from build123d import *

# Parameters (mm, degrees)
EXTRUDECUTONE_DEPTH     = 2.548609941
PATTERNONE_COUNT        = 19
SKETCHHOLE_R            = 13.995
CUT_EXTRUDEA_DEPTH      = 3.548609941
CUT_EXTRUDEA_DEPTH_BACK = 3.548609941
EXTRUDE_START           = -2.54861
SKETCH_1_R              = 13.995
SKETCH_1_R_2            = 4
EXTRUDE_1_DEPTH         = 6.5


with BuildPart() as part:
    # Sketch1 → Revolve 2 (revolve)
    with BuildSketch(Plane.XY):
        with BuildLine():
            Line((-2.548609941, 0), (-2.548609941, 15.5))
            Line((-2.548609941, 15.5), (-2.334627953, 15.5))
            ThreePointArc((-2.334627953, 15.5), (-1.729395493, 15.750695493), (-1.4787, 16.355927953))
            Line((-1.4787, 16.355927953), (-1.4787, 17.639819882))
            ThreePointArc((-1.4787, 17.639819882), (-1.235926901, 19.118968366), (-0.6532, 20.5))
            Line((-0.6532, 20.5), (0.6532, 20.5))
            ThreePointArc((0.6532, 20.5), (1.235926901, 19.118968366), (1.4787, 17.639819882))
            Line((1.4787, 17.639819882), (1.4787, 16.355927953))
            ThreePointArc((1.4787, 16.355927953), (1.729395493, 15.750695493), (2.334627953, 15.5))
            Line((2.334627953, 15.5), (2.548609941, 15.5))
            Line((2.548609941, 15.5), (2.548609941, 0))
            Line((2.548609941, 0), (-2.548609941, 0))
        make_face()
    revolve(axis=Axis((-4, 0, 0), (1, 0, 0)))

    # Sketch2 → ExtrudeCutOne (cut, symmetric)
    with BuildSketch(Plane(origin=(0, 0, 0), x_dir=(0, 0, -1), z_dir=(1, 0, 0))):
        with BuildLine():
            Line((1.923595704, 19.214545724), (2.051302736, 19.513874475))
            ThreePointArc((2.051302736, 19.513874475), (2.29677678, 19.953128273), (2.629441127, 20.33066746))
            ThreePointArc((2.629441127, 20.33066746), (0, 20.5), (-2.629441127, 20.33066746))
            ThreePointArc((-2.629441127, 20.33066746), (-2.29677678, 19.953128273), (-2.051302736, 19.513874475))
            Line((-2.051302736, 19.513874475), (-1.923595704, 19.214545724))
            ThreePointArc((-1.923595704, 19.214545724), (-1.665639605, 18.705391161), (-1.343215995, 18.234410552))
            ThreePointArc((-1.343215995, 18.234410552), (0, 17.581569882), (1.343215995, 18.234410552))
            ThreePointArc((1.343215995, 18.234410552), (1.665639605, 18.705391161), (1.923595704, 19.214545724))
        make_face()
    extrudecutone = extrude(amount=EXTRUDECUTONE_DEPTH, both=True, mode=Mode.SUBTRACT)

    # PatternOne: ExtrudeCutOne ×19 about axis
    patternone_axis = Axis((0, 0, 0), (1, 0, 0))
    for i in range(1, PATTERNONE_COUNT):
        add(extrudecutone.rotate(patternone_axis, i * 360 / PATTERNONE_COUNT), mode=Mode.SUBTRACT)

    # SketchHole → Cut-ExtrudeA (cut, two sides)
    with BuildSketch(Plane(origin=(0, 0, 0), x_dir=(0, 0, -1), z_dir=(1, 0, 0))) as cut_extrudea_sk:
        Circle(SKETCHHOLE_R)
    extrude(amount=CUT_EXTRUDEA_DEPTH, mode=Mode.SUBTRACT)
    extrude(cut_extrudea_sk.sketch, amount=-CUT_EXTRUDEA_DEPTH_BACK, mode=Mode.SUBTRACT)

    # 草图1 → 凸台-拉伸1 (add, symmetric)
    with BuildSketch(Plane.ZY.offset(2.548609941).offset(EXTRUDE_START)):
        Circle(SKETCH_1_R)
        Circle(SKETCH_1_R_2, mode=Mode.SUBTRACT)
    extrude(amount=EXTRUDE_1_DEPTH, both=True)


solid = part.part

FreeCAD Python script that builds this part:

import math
import FreeCAD as App
import Part
import Sketcher

doc = App.newDocument("Part")
body = doc.addObject("PartDesign::Body", "Body")

# Sketch on XY plane
sketch1 = doc.addObject("Sketcher::SketchObject", "Sketch")
body.addObject(sketch1)
sketch1.AttachmentSupport = (doc.XY_Plane, [""])
sketch1.MapMode = "FlatFace"
sketch1.addGeometry([
    Part.LineSegment(App.Vector(-2.55, 15.5, 0), App.Vector(-2.55, 0, 0)),  # 0
    Part.LineSegment(App.Vector(-2.55, 0, 0), App.Vector(2.55, 0, 0)),  # 1
    Part.LineSegment(App.Vector(2.55, 0, 0), App.Vector(2.55, 15.5, 0)),  # 2
    Part.LineSegment(App.Vector(2.55, 15.5, 0), App.Vector(2.33, 15.5, 0)),  # 3
    Part.ArcOfCircle(Part.Circle(App.Vector(2.33, 16.36, 0), App.Vector(0, 0, 1), 0.86), math.radians(180), math.radians(270)),  # 4
    Part.LineSegment(App.Vector(1.48, 16.36, 0), App.Vector(1.48, 17.64, 0)),  # 5
    Part.ArcOfCircle(Part.Circle(App.Vector(-4.87, 17.36, 0), App.Vector(0, 0, 1), 6.35), math.radians(3), math.radians(30)),  # 6
    Part.LineSegment(App.Vector(0.65, 20.5, 0), App.Vector(-0.65, 20.5, 0)),  # 7
    Part.ArcOfCircle(Part.Circle(App.Vector(4.87, 17.36, 0), App.Vector(0, 0, 1), 6.35), math.radians(150), math.radians(177)),  # 8
    Part.LineSegment(App.Vector(-1.48, 17.64, 0), App.Vector(-1.48, 16.36, 0)),  # 9
    Part.ArcOfCircle(Part.Circle(App.Vector(-2.33, 16.36, 0), App.Vector(0, 0, 1), 0.86), math.radians(-90), math.radians(0)),  # 10
    Part.LineSegment(App.Vector(-2.33, 15.5, 0), App.Vector(-2.55, 15.5, 0)),  # 11
], False)
sketch1.addConstraint([
    Sketcher.Constraint("Coincident", 0, 2, 1, 1),
    Sketcher.Constraint("Coincident", 1, 2, 2, 1),
    Sketcher.Constraint("Coincident", 2, 2, 3, 1),
    Sketcher.Constraint("Tangent", 3, 2, 4, 2),
    Sketcher.Constraint("Tangent", 4, 1, 5, 1),
    Sketcher.Constraint("Coincident", 5, 2, 6, 1),
    Sketcher.Constraint("Coincident", 6, 2, 7, 1),
    Sketcher.Constraint("Coincident", 7, 2, 8, 1),
    Sketcher.Constraint("Coincident", 8, 2, 9, 1),
    Sketcher.Constraint("Tangent", 9, 2, 10, 2),
    Sketcher.Constraint("Tangent", 10, 1, 11, 1),
    Sketcher.Constraint("Coincident", 11, 2, 0, 1),
    Sketcher.Constraint("Vertical", 0),
    Sketcher.Constraint("Horizontal", 1),
    Sketcher.Constraint("Vertical", 2),
    Sketcher.Constraint("Horizontal", 3),
    Sketcher.Constraint("Vertical", 5),
    Sketcher.Constraint("Horizontal", 7),
    Sketcher.Constraint("Vertical", 9),
    Sketcher.Constraint("Horizontal", 11),
    Sketcher.Constraint("Equal", 6, 8),
    Sketcher.Constraint("Equal", 4, 10),
    Sketcher.Constraint("Symmetric", 0, 2, 1, 2, -1, 1),
    Sketcher.Constraint("Symmetric", 6, 3, 8, 3, -2),
    Sketcher.Constraint("Symmetric", 4, 3, 10, 3, -2),
    Sketcher.Constraint("Radius", 6, 6.35),
    Sketcher.Constraint("DistanceY", 0, 2, 0, 1, 15.5),
    Sketcher.Constraint("DistanceY", -1, 1, 6, 2, 20.5),
    Sketcher.Constraint("DistanceX", 7, 2, 7, 1, 1.3064),
    Sketcher.Constraint("Radius", 4, 0.855928),
    Sketcher.Constraint("DistanceX", 1, 1, 1, 2, 5.09722),
    Sketcher.Constraint("DistanceX", 3, 2, 3, 1, 0.213982),
    Sketcher.Constraint("DistanceY", 5, 1, 5, 2, 1.283892),
])
revolution = doc.addObject("PartDesign::Revolution", "Revolution")
body.addObject(revolution)
revolution.Profile = sketch1
revolution.ReferenceAxis = (sketch1, ["H_Axis"])
revolution.Angle = 360

# Sketch on YZ plane
sketch2 = doc.addObject("Sketcher::SketchObject", "Sketch001")
body.addObject(sketch2)
sketch2.AttachmentSupport = (doc.YZ_Plane, [""])
sketch2.MapMode = "FlatFace"
sketch2.addGeometry([
    Part.LineSegment(App.Vector(19.21, -1.92, 0), App.Vector(19.51, -2.05, 0)),  # 0
    Part.ArcOfCircle(Part.Circle(App.Vector(18.58, -4.23, 0), App.Vector(0, 0, 1), 2.37), math.radians(43), math.radians(67)),  # 1
    Part.ArcOfCircle(Part.Circle(App.Vector(0, 0, 0), App.Vector(0, 0, 1), 20.5), math.radians(-7.37), math.radians(7.37)),  # 2
    Part.ArcOfCircle(Part.Circle(App.Vector(18.58, 4.23, 0), App.Vector(0, 0, 1), 2.37), math.radians(-67), math.radians(-43)),  # 3
    Part.LineSegment(App.Vector(19.51, 2.05, 0), App.Vector(19.21, 1.92, 0)),  # 4
    Part.ArcOfCircle(Part.Circle(App.Vector(20.92, -2.08, 0), App.Vector(0, 0, 1), 4.35), math.radians(113.11), math.radians(128.16)),  # 5
    Part.ArcOfCircle(Part.Circle(App.Vector(19.29, 0, 0), App.Vector(0, 0, 1), 1.71), math.radians(128), math.radians(232)),  # 6
    Part.ArcOfCircle(Part.Circle(App.Vector(20.92, 2.08, 0), App.Vector(0, 0, 1), 4.35), math.radians(-128.16), math.radians(-113.11)),  # 7
], False)
sketch2.addConstraint([
    Sketcher.Constraint("Tangent", 0, 2, 1, 2),
    Sketcher.Constraint("Coincident", 1, 1, 2, 1),
    Sketcher.Constraint("Coincident", 2, 2, 3, 2),
    Sketcher.Constraint("Tangent", 3, 1, 4, 1),
    Sketcher.Constraint("Tangent", 4, 2, 5, 1),
    Sketcher.Constraint("Tangent", 5, 2, 6, 1),
    Sketcher.Constraint("Tangent", 6, 2, 7, 1),
    Sketcher.Constraint("Tangent", 7, 2, 0, 1),
    Sketcher.Constraint("Coincident", 2, 3, -1, 1),
    Sketcher.Constraint("Equal", 1, 3),
    Sketcher.Constraint("Equal", 5, 7),
    Sketcher.Constraint("Symmetric", 1, 3, 3, 3, -1),
    Sketcher.Constraint("Symmetric", 5, 3, 7, 3, -1),
    Sketcher.Constraint("Radius", 2, 20.5),
    Sketcher.Constraint("Radius", 1, 2.370322),
    Sketcher.Constraint("Radius", 5, 4.34825),
    Sketcher.Constraint("Radius", 6, 1.70825),
    Sketcher.Constraint("DistanceX", -1, 1, 1, 3, 18.583709),
    Sketcher.Constraint("DistanceY", 1, 3, -1, 1, 4.23149),
    Sketcher.Constraint("DistanceY", 5, 3, -1, 1, 2.075861),
    Sketcher.Constraint("DistanceX", -1, 1, 6, 3, 19.28982),
])
pocket1 = doc.addObject("PartDesign::Pocket", "Pocket")
body.addObject(pocket1)
pocket1.Profile = sketch2
pocket1.Length = 5.09722
pocket1.Midplane = True
doc.recompute()

polarpattern = doc.addObject("PartDesign::PolarPattern", "PolarPattern")
body.addObject(polarpattern)
polarpattern.Originals = [pocket1]
polarpattern.Axis = (doc.X_Axis, [""])
polarpattern.Angle = 360
polarpattern.Occurrences = 19
body.Tip = polarpattern

# Sketch on YZ plane
sketch3 = doc.addObject("Sketcher::SketchObject", "Sketch002")
body.addObject(sketch3)
sketch3.AttachmentSupport = (doc.YZ_Plane, [""])
sketch3.MapMode = "FlatFace"
sketch3.addGeometry(Part.Circle(App.Vector(0, 0, 0), App.Vector(0, 0, 1), 14), False)
sketch3.addConstraint([
    Sketcher.Constraint("Coincident", 0, 3, -1, 1),
    Sketcher.Constraint("Diameter", 0, 27.99),
])
pocket2 = doc.addObject("PartDesign::Pocket", "Pocket001")
body.addObject(pocket2)
pocket2.Profile = sketch3
pocket2.Type = "ThroughAll"
pocket2.Midplane = True

# Sketch on YZ plane
sketch4 = doc.addObject("Sketcher::SketchObject", "Sketch003")
body.addObject(sketch4)
sketch4.AttachmentSupport = (doc.YZ_Plane, [""])
sketch4.MapMode = "FlatFace"
sketch4.AttachmentOffset = App.Placement(App.Vector(0, 0, 0), App.Rotation())
sketch4.addGeometry([
    Part.Circle(App.Vector(0, 0, 0), App.Vector(0, 0, 1), 14),
    Part.Circle(App.Vector(0, 0, 0), App.Vector(0, 0, 1), 4),
], False)
sketch4.addConstraint([
    Sketcher.Constraint("Coincident", 0, 3, -1, 1),
    Sketcher.Constraint("Coincident", 1, 3, -1, 1),
    Sketcher.Constraint("Diameter", 1, 8.0),
    Sketcher.Constraint("Diameter", 0, 27.99),
])
pad1 = doc.addObject("PartDesign::Pad", "Pad")
body.addObject(pad1)
pad1.Profile = sketch4
pad1.Length = 13
pad1.Midplane = True

doc.recompute()
